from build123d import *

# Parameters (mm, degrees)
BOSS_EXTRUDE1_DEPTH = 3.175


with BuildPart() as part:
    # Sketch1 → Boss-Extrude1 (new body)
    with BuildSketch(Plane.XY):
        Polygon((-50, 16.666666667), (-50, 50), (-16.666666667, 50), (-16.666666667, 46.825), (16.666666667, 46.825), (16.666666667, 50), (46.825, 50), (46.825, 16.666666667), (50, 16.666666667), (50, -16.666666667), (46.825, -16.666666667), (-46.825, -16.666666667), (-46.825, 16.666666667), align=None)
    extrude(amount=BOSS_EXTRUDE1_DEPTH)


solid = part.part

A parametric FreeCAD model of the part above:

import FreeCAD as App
import Part
import Sketcher
Q = App.Units.Quantity


def add_polygon(sketch, points):
    """Adds a closed chain of lines whose ends are joined by coincident constraints."""
    first, n = sketch.GeometryCount, len(points)
    for a, b in zip(points, points[1:] + points[:1]):
        sketch.addGeometry(Part.LineSegment(App.Vector(*a, 0), App.Vector(*b, 0)), False)
    for i in range(n):
        sketch.addConstraint(Sketcher.Constraint("Coincident", first + i, 2, first + (i + 1) % n, 1))

doc = App.newDocument("Part")
body = doc.addObject("PartDesign::Body", "Body")

sketch1 = doc.addObject("Sketcher::SketchObject", "Sketch")
body.addObject(sketch1)
sketch1.AttachmentSupport = (doc.XY_Plane, [""])
sketch1.MapMode = "FlatFace"
add_polygon(sketch1, [(-50, 50), (-50, 16.7), (-46.8, 16.7), (-46.8, -16.7), (50, -16.7), (50, 16.7), (46.8, 16.7), (46.8, 50), (16.7, 50), (16.7, 46.8), (-16.7, 46.8), (-16.7, 50)])
sketch1.addConstraint([
    Sketcher.Constraint("Vertical", 0),
    Sketcher.Constraint("Horizontal", 1),
    Sketcher.Constraint("Vertical", 2),
    Sketcher.Constraint("Horizontal", 3),
    Sketcher.Constraint("Vertical", 4),
    Sketcher.Constraint("Horizontal", 5),
    Sketcher.Constraint("Vertical", 6),
    Sketcher.Constraint("Horizontal", 7),
    Sketcher.Constraint("Vertical", 8),
    Sketcher.Constraint("Horizontal", 9),
    Sketcher.Constraint("Vertical", 10),
    Sketcher.Constraint("Horizontal", 11),
    Sketcher.Constraint("Symmetric", 0, 2, 3, 2, -1, 1),
    Sketcher.Constraint("Symmetric", 2, 2, 5, 2, -1, 1),
    Sketcher.Constraint("Symmetric", 7, 2, 10, 2, -2),
    Sketcher.Constraint("Equal", 9, 11),
    Sketcher.Constraint("Equal", 11, 0),
    Sketcher.Constraint("Equal", 0, 2),
    Sketcher.Constraint("Equal", 5, 8),
    Sketcher.Constraint("DistanceX", 1, 1, 1, 2, Q("0.125 in")),
    Sketcher.Constraint("DistanceX", 3, 1, 3, 2, 96.825),
])
pad1 = doc.addObject("PartDesign::Pad", "Pad")
body.addObject(pad1)
pad1.Profile = sketch1
pad1.Length = Q("0.125 in")

doc.recompute()
